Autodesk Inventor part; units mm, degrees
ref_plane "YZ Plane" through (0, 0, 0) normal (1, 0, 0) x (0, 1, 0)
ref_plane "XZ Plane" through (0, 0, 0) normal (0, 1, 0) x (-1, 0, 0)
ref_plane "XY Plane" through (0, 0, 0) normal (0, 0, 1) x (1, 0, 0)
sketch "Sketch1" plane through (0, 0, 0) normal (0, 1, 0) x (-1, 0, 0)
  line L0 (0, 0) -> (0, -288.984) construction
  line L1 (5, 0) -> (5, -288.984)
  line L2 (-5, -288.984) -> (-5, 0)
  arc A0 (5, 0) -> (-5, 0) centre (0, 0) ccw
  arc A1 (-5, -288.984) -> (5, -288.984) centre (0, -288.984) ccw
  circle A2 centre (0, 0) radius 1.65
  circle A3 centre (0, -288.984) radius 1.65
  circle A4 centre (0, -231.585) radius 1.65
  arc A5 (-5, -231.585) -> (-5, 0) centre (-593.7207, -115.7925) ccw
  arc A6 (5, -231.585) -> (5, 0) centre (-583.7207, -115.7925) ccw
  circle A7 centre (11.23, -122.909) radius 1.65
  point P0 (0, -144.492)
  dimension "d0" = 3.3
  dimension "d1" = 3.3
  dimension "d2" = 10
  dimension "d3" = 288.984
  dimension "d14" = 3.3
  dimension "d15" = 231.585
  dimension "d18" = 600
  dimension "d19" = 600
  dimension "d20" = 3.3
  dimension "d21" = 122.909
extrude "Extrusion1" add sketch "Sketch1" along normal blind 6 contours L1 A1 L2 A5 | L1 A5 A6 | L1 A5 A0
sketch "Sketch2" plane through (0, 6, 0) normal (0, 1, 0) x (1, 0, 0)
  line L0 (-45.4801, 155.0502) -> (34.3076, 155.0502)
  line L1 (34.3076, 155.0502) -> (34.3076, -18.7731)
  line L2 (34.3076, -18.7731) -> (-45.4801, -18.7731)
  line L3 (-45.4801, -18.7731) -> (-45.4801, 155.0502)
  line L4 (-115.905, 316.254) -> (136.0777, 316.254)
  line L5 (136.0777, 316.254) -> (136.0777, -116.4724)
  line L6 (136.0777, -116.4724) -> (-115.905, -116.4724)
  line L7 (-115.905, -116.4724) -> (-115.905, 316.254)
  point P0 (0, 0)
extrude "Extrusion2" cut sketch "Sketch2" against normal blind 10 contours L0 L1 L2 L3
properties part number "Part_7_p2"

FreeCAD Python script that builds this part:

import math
import FreeCAD as App
import Part
import Sketcher
from FreeCAD import Vector


def add_polygon(sketch, points):
    """Adds a closed chain of lines whose ends are joined by coincident constraints."""
    first, n = sketch.GeometryCount, len(points)
    for a, b in zip(points, points[1:] + points[:1]):
        sketch.addGeometry(Part.LineSegment(App.Vector(*a, 0), App.Vector(*b, 0)), False)
    for i in range(n):
        sketch.addConstraint(Sketcher.Constraint("Coincident", first + i, 2, first + (i + 1) % n, 1))

doc = App.newDocument("Part")
body = doc.addObject("PartDesign::Body", "Body")

# Sketch on XZ plane
sketch1 = body.newObject("Sketcher::SketchObject", "Sketch")
sketch1.AttachmentSupport = (doc.getObject("XZ_Plane"), [""])
sketch1.MapMode = "FlatFace"
sketch1.addGeometry([
    Part.LineSegment(Vector(-5, -289, 0), Vector(-5, -231.6, 0)),  # 0
    Part.ArcOfCircle(Part.Circle(Vector(583.7, -115.8, 0), Vector(0, 0, 1), 600), math.radians(169), math.radians(191)),  # 1
    Part.ArcOfCircle(Part.Circle(Vector(0, 0, 0), Vector(0, 0, 1), 5), math.radians(0), math.radians(180)),  # 2
    Part.ArcOfCircle(Part.Circle(Vector(593.7, -115.8, 0), Vector(0, 0, 1), 600), math.radians(169), math.radians(191)),  # 3
    Part.LineSegment(Vector(5, -231.6, 0), Vector(5, -289, 0)),  # 4
    Part.ArcOfCircle(Part.Circle(Vector(0, -289, 0), Vector(0, 0, 1), 5), math.radians(180), math.radians(360)),  # 5
    Part.Circle(Vector(0, -289, 0), Vector(0, 0, 1), 1.6),  # 6
    Part.Circle(Vector(0, -231.6, 0), Vector(0, 0, 1), 1.6),  # 7
    Part.Circle(Vector(-11.2, -122.9, 0), Vector(0, 0, 1), 1.6),  # 8
    Part.Circle(Vector(0, 0, 0), Vector(0, 0, 1), 1.6),  # 9
], False)
sketch1.addConstraint([
    Sketcher.Constraint("Coincident", 0, 2, 1, 2),
    Sketcher.Constraint("Coincident", 1, 1, 2, 2),
    Sketcher.Constraint("Coincident", 2, 1, 3, 1),
    Sketcher.Constraint("Coincident", 3, 2, 4, 1),
    Sketcher.Constraint("Tangent", 4, 2, 5, 2),
    Sketcher.Constraint("Tangent", 5, 1, 0, 1),
    Sketcher.Constraint("Vertical", 0),
    Sketcher.Constraint("Vertical", 4),
    Sketcher.Constraint("Coincident", 2, 3, -1, 1),
    Sketcher.Constraint("Coincident", 9, 3, -1, 1),
    Sketcher.Constraint("Coincident", 6, 3, 5, 3),
    Sketcher.Constraint("Equal", 1, 3),
    Sketcher.Constraint("Equal", 2, 5),
    Sketcher.Constraint("Equal", 6, 7),
    Sketcher.Constraint("Equal", 7, 8),
    Sketcher.Constraint("Equal", 8, 9),
    Sketcher.Constraint("Symmetric", 0, 2, 3, 2, -2),
    Sketcher.Constraint("PointOnObject", 7, 3, -2),
    Sketcher.Constraint("PointOnObject", 1, 1, -1),
    Sketcher.Constraint("PointOnObject", 2, 1, -1),
    Sketcher.Constraint("Horizontal", 7, 3, 0, 2),
    Sketcher.Constraint("Radius", 1, 600.0),
    Sketcher.Constraint("Radius", 2, 5.0),
    Sketcher.Constraint("Diameter", 6, 3.3),
    Sketcher.Constraint("DistanceY", 5, 3, -1, 1, 288.984),
    Sketcher.Constraint("DistanceY", 7, 3, -1, 1, 231.585),
    Sketcher.Constraint("DistanceY", 8, 3, -1, 1, 122.909),
    Sketcher.Constraint("DistanceX", 8, 3, -1, 1, 11.23),
])
pad1 = body.newObject("PartDesign::Pad", "Pad")
pad1.Profile = sketch1
pad1.Length = 6
pad1.Reversed = True

# Sketch on XZ plane
sketch2 = body.newObject("Sketcher::SketchObject", "Sketch001")
sketch2.AttachmentSupport = (doc.getObject("XZ_Plane"), [""])
sketch2.MapMode = "FlatFace"
sketch2.AttachmentOffset = App.Placement(Vector(0, 0, -6), App.Rotation())
add_polygon(sketch2, [(34, -155), (-45, -155), (-45, 19), (34, 19)])  # lines 0-3
sketch2.addConstraint([
    Sketcher.Constraint("Horizontal", 0),
    Sketcher.Constraint("Vertical", 1),
    Sketcher.Constraint("Horizontal", 2),
    Sketcher.Constraint("Vertical", 3),
    Sketcher.Constraint("DistanceX", 0, 2, -1, 1, 45.48),
    Sketcher.Constraint("DistanceX", 0, 2, 0, 1, 79.7877),
    Sketcher.Constraint("DistanceY", 1, 1, 1, 2, 173.8233),
    Sketcher.Constraint("DistanceY", -1, 1, 1, 2, 18.773),
])
pocket1 = body.newObject("PartDesign::Pocket", "Pocket")
pocket1.Profile = sketch2
pocket1.Length = 10
pocket1.Reversed = True

doc.recompute()
